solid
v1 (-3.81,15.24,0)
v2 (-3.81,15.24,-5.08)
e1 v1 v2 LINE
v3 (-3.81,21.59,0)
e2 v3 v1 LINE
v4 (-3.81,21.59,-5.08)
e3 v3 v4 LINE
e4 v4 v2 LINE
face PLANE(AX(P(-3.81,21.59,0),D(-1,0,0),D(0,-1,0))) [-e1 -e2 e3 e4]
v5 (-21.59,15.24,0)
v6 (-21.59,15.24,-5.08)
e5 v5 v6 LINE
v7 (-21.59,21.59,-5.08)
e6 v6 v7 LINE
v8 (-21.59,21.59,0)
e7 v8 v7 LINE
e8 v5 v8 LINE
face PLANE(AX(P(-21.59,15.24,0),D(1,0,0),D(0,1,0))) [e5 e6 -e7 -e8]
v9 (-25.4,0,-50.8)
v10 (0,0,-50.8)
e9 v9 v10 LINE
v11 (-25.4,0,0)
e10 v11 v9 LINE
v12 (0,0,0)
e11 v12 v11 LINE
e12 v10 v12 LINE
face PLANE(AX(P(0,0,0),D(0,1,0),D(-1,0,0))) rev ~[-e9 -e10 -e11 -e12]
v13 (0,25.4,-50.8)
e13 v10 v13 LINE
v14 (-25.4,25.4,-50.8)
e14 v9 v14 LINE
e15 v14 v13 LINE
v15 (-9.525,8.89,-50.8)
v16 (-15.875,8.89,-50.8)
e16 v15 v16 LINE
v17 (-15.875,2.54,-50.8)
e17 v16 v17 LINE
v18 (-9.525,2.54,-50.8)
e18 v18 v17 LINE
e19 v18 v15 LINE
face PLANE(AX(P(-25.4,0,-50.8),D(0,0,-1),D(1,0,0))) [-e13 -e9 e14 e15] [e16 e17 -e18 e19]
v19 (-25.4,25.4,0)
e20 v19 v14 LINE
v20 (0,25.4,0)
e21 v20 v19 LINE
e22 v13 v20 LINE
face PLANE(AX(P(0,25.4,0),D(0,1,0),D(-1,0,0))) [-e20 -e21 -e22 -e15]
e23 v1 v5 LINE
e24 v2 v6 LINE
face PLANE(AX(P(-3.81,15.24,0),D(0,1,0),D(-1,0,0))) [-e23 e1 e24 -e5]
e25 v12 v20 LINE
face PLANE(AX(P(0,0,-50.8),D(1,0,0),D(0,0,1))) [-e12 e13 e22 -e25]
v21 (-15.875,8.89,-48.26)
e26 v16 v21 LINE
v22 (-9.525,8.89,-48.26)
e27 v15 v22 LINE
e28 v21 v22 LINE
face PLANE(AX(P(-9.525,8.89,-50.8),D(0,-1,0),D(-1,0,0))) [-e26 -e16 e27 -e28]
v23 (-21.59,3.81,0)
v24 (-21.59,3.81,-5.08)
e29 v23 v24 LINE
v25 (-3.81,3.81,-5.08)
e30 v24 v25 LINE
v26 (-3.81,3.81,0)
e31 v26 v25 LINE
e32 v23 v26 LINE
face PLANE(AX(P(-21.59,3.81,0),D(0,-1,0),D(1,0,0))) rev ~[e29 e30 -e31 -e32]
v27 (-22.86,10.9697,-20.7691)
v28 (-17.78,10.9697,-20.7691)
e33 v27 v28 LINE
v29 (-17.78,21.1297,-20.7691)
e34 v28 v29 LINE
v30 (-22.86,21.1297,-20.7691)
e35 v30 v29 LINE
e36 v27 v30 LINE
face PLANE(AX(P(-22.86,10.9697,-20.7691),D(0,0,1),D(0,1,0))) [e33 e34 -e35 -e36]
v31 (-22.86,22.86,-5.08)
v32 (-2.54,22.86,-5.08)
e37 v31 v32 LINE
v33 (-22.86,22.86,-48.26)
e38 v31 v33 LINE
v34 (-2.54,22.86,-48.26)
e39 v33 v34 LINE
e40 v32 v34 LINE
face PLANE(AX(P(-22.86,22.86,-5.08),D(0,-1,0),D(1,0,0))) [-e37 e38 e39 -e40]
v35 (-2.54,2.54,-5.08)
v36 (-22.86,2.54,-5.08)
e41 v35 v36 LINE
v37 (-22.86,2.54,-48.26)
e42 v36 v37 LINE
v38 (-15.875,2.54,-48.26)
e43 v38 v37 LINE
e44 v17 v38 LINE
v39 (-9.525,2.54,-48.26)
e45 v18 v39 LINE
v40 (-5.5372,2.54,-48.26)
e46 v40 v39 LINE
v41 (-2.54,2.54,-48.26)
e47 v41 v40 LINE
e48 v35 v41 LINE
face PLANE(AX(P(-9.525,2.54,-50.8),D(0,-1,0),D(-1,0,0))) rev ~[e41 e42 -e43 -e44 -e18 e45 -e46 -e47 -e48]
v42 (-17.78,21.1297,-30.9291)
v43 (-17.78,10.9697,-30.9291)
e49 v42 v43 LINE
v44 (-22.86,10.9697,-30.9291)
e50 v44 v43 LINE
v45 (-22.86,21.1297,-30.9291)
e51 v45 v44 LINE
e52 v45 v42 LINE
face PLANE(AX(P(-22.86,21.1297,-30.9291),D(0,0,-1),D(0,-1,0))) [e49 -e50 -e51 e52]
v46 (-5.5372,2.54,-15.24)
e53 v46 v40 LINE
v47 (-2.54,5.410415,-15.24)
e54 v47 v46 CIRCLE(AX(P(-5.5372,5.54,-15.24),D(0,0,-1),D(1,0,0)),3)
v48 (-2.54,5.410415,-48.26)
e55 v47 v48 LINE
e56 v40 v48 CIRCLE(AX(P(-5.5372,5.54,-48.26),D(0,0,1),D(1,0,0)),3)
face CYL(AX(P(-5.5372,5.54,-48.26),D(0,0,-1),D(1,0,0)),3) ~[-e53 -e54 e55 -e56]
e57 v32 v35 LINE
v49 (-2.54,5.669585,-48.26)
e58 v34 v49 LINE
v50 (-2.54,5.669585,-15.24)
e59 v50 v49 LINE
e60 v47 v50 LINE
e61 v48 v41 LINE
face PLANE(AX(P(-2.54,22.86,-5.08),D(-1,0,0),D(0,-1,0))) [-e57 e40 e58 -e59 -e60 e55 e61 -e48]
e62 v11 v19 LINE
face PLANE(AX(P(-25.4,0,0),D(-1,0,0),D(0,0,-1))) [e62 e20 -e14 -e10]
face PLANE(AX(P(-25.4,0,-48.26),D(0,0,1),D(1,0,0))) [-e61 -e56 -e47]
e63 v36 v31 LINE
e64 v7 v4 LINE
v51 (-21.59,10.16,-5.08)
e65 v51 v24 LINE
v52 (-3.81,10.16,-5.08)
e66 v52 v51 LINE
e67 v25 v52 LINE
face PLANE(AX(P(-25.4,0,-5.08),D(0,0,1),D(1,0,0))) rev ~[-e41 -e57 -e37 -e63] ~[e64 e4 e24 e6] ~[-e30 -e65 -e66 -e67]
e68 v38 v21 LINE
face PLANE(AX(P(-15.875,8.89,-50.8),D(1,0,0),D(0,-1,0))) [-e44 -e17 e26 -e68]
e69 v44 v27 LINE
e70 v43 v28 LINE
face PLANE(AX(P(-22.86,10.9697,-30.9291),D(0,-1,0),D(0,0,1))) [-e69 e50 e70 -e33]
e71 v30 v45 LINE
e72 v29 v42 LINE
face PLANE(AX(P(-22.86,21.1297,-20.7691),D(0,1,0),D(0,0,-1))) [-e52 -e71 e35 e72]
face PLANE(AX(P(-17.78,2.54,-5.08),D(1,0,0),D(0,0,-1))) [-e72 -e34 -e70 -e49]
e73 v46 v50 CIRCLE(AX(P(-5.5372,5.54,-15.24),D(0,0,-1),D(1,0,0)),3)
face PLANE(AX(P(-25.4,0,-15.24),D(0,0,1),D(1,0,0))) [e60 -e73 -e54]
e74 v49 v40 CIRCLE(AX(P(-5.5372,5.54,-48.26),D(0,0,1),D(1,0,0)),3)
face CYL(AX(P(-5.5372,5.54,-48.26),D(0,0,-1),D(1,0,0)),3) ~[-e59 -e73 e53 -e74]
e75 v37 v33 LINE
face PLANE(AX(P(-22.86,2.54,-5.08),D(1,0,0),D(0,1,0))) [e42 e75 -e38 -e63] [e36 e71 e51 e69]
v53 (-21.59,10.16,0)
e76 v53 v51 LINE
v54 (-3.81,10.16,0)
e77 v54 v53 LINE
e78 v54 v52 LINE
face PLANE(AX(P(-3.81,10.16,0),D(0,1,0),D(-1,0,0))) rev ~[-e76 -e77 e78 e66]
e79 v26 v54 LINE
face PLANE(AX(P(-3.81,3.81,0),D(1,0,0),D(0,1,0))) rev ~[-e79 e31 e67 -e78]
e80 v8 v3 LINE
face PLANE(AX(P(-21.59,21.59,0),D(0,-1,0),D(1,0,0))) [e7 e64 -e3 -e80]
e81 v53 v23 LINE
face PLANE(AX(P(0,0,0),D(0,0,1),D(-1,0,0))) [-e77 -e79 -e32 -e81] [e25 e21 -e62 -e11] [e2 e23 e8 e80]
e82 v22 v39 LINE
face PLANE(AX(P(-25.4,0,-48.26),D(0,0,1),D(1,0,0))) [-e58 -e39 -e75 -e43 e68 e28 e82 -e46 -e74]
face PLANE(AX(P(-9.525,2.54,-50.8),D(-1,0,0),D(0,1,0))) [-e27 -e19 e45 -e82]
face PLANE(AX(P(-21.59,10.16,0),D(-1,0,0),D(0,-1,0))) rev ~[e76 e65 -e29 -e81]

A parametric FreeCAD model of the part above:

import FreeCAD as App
import Part
import Sketcher
from FreeCAD import Vector
Q = App.Units.Quantity


def add_polygon(sketch, points):
    """Adds a closed chain of lines whose ends are joined by coincident constraints."""
    first, n = sketch.GeometryCount, len(points)
    for a, b in zip(points, points[1:] + points[:1]):
        sketch.addGeometry(Part.LineSegment(App.Vector(*a, 0), App.Vector(*b, 0)), False)
    for i in range(n):
        sketch.addConstraint(Sketcher.Constraint("Coincident", first + i, 2, first + (i + 1) % n, 1))

doc = App.newDocument("Part")
body = doc.addObject("PartDesign::Body", "Body")

sketch1 = doc.addObject("Sketcher::SketchObject", "Sketch")
body.addObject(sketch1)
sketch1.AttachmentSupport = (doc.XZ_Plane, [""])
sketch1.MapMode = "FlatFace"
add_polygon(sketch1, [(-25, 0), (0, 0), (0, -51), (-25, -51)])
sketch1.addConstraint([
    Sketcher.Constraint("Horizontal", 0),
    Sketcher.Constraint("Vertical", 1),
    Sketcher.Constraint("Horizontal", 2),
    Sketcher.Constraint("Vertical", 3),
    Sketcher.Constraint("Coincident", 0, 2, -1, 1),
    Sketcher.Constraint("DistanceX", 0, 1, 0, 2, Q("1 in")),
    Sketcher.Constraint("DistanceY", 1, 2, 1, 1, Q("2 in")),
])
pad1 = doc.addObject("PartDesign::Pad", "Pad")
body.addObject(pad1)
pad1.Profile = sketch1
pad1.Length = Q("1 in")
pad1.Reversed = True

sketch2 = doc.addObject("Sketcher::SketchObject", "Sketch001")
body.addObject(sketch2)
sketch2.AttachmentSupport = (doc.XY_Plane, [""])
sketch2.MapMode = "FlatFace"
add_polygon(sketch2, [(-4, 22), (-22, 22), (-22, 15), (-4, 15)])
add_polygon(sketch2, [(-22, 10), (-22, 4), (-4, 4), (-4, 10)])
sketch2.addConstraint([
    Sketcher.Constraint("Horizontal", 0),
    Sketcher.Constraint("Vertical", 1),
    Sketcher.Constraint("Horizontal", 2),
    Sketcher.Constraint("Vertical", 3),
    Sketcher.Constraint("Vertical", 4),
    Sketcher.Constraint("Horizontal", 5),
    Sketcher.Constraint("Vertical", 6),
    Sketcher.Constraint("Horizontal", 7),
    Sketcher.Constraint("Vertical", 1, 2, 4, 2),
    Sketcher.Constraint("Vertical", 3, 2, 5, 2),
    Sketcher.Constraint("Equal", 3, 4),
    Sketcher.Constraint("DistanceY", 1, 2, 1, 1, Q("0.25 in")),
    Sketcher.Constraint("DistanceX", 2, 2, -1, 1, Q("0.15 in")),
    Sketcher.Constraint("DistanceY", -1, 1, 4, 2, Q("0.15 in")),
    Sketcher.Constraint("DistanceX", 0, 2, 0, 1, Q("0.7 in")),
    Sketcher.Constraint("DistanceY", -1, 1, 1, 2, Q("0.6 in")),
])
pocket1 = doc.addObject("PartDesign::Pocket", "Pocket")
body.addObject(pocket1)
pocket1.Profile = sketch2
pocket1.Length = Q("0.2 in")

sketch3 = doc.addObject("Sketcher::SketchObject", "Sketch002")
body.addObject(sketch3)
sketch3.AttachmentSupport = (doc.XY_Plane, [""])
sketch3.MapMode = "FlatFace"
sketch3.AttachmentOffset = App.Placement(Vector(0, 0, -0.2 * 25.4), App.Rotation())
add_polygon(sketch3, [(-3, 23), (-23, 23), (-23, 3), (-3, 3)])
sketch3.addConstraint([
    Sketcher.Constraint("Horizontal", 0),
    Sketcher.Constraint("Vertical", 1),
    Sketcher.Constraint("Horizontal", 2),
    Sketcher.Constraint("Vertical", 3),
    Sketcher.Constraint("Equal", 2, 1),
    Sketcher.Constraint("DistanceY", -1, 1, 1, 2, Q("0.1 in")),
    Sketcher.Constraint("DistanceX", 2, 2, -1, 1, Q("0.1 in")),
    Sketcher.Constraint("DistanceX", 0, 2, 0, 1, Q("0.8 in")),
])
pocket2 = doc.addObject("PartDesign::Pocket", "Pocket001")
body.addObject(pocket2)
pocket2.Profile = sketch3
pocket2.Length = Q("1.7 in")

sketch4 = doc.addObject("Sketcher::SketchObject", "Sketch003")
body.addObject(sketch4)
sketch4.AttachmentSupport = (doc.XY_Plane, [""])
sketch4.MapMode = "FlatFace"
sketch4.AttachmentOffset = App.Placement(Vector(0, 0, -2 * 25.4), App.Rotation())
add_polygon(sketch4, [(-10, 9), (-10, 3), (-16, 3), (-16, 9)])
sketch4.addConstraint([
    Sketcher.Constraint("Vertical", 0),
    Sketcher.Constraint("Horizontal", 1),
    Sketcher.Constraint("Vertical", 2),
    Sketcher.Constraint("Horizontal", 3),
    Sketcher.Constraint("Equal", 3, 0),
    Sketcher.Constraint("DistanceX", 1, 2, 1, 1, Q("0.25 in")),
    Sketcher.Constraint("DistanceX", 0, 2, -1, 1, Q("0.375 in")),
    Sketcher.Constraint("DistanceY", -1, 1, 0, 2, Q("0.1 in")),
])
pocket3 = doc.addObject("PartDesign::Pocket", "Pocket002")
body.addObject(pocket3)
pocket3.Profile = sketch4
pocket3.Length = Q("0.5 in")
pocket3.Reversed = True

sketch5 = doc.addObject("Sketcher::SketchObject", "Sketch004")
body.addObject(sketch5)
sketch5.AttachmentSupport = (doc.YZ_Plane, [""])
sketch5.MapMode = "FlatFace"
sketch5.AttachmentOffset = App.Placement(Vector(0, 0, -0.9 * 25.4), App.Rotation())
add_polygon(sketch5, [(21, -31), (21, -21), (11, -21), (11, -31)])
sketch5.addConstraint([
    Sketcher.Constraint("Vertical", 0),
    Sketcher.Constraint("Horizontal", 1),
    Sketcher.Constraint("Vertical", 2),
    Sketcher.Constraint("Horizontal", 3),
    Sketcher.Constraint("Equal", 3, 0),
    Sketcher.Constraint("DistanceX", 1, 2, 1, 1, Q("0.4 in")),
    Sketcher.Constraint("DistanceX", -1, 1, 0, 2, 21.1297),
    Sketcher.Constraint("DistanceY", 0, 2, -1, 1, 20.769),
])
pad2 = doc.addObject("PartDesign::Pad", "Pad001")
body.addObject(pad2)
pad2.Profile = sketch5
pad2.Length = Q("0.2 in")

sketch6 = doc.addObject("Sketcher::SketchObject", "Sketch005")
body.addObject(sketch6)
sketch6.AttachmentSupport = (doc.XY_Plane, [""])
sketch6.MapMode = "FlatFace"
sketch6.AttachmentOffset = App.Placement(Vector(0, 0, -1.9 * 25.4), App.Rotation())
sketch6.addGeometry(Part.Circle(Vector(-5.5, 5.5, 0), Vector(0, 0, 1), 3), False)
sketch6.addConstraint([
    Sketcher.Constraint("Diameter", 0, 6.0),
    Sketcher.Constraint("DistanceX", 0, 3, -1, 1, Q("0.218 in")),
    Sketcher.Constraint("DistanceY", -1, 1, 0, 3, Q("0.2181 in")),
])
pad3 = doc.addObject("PartDesign::Pad", "Pad002")
body.addObject(pad3)
pad3.Profile = sketch6
pad3.Length = Q("1.3 in")

doc.recompute()
